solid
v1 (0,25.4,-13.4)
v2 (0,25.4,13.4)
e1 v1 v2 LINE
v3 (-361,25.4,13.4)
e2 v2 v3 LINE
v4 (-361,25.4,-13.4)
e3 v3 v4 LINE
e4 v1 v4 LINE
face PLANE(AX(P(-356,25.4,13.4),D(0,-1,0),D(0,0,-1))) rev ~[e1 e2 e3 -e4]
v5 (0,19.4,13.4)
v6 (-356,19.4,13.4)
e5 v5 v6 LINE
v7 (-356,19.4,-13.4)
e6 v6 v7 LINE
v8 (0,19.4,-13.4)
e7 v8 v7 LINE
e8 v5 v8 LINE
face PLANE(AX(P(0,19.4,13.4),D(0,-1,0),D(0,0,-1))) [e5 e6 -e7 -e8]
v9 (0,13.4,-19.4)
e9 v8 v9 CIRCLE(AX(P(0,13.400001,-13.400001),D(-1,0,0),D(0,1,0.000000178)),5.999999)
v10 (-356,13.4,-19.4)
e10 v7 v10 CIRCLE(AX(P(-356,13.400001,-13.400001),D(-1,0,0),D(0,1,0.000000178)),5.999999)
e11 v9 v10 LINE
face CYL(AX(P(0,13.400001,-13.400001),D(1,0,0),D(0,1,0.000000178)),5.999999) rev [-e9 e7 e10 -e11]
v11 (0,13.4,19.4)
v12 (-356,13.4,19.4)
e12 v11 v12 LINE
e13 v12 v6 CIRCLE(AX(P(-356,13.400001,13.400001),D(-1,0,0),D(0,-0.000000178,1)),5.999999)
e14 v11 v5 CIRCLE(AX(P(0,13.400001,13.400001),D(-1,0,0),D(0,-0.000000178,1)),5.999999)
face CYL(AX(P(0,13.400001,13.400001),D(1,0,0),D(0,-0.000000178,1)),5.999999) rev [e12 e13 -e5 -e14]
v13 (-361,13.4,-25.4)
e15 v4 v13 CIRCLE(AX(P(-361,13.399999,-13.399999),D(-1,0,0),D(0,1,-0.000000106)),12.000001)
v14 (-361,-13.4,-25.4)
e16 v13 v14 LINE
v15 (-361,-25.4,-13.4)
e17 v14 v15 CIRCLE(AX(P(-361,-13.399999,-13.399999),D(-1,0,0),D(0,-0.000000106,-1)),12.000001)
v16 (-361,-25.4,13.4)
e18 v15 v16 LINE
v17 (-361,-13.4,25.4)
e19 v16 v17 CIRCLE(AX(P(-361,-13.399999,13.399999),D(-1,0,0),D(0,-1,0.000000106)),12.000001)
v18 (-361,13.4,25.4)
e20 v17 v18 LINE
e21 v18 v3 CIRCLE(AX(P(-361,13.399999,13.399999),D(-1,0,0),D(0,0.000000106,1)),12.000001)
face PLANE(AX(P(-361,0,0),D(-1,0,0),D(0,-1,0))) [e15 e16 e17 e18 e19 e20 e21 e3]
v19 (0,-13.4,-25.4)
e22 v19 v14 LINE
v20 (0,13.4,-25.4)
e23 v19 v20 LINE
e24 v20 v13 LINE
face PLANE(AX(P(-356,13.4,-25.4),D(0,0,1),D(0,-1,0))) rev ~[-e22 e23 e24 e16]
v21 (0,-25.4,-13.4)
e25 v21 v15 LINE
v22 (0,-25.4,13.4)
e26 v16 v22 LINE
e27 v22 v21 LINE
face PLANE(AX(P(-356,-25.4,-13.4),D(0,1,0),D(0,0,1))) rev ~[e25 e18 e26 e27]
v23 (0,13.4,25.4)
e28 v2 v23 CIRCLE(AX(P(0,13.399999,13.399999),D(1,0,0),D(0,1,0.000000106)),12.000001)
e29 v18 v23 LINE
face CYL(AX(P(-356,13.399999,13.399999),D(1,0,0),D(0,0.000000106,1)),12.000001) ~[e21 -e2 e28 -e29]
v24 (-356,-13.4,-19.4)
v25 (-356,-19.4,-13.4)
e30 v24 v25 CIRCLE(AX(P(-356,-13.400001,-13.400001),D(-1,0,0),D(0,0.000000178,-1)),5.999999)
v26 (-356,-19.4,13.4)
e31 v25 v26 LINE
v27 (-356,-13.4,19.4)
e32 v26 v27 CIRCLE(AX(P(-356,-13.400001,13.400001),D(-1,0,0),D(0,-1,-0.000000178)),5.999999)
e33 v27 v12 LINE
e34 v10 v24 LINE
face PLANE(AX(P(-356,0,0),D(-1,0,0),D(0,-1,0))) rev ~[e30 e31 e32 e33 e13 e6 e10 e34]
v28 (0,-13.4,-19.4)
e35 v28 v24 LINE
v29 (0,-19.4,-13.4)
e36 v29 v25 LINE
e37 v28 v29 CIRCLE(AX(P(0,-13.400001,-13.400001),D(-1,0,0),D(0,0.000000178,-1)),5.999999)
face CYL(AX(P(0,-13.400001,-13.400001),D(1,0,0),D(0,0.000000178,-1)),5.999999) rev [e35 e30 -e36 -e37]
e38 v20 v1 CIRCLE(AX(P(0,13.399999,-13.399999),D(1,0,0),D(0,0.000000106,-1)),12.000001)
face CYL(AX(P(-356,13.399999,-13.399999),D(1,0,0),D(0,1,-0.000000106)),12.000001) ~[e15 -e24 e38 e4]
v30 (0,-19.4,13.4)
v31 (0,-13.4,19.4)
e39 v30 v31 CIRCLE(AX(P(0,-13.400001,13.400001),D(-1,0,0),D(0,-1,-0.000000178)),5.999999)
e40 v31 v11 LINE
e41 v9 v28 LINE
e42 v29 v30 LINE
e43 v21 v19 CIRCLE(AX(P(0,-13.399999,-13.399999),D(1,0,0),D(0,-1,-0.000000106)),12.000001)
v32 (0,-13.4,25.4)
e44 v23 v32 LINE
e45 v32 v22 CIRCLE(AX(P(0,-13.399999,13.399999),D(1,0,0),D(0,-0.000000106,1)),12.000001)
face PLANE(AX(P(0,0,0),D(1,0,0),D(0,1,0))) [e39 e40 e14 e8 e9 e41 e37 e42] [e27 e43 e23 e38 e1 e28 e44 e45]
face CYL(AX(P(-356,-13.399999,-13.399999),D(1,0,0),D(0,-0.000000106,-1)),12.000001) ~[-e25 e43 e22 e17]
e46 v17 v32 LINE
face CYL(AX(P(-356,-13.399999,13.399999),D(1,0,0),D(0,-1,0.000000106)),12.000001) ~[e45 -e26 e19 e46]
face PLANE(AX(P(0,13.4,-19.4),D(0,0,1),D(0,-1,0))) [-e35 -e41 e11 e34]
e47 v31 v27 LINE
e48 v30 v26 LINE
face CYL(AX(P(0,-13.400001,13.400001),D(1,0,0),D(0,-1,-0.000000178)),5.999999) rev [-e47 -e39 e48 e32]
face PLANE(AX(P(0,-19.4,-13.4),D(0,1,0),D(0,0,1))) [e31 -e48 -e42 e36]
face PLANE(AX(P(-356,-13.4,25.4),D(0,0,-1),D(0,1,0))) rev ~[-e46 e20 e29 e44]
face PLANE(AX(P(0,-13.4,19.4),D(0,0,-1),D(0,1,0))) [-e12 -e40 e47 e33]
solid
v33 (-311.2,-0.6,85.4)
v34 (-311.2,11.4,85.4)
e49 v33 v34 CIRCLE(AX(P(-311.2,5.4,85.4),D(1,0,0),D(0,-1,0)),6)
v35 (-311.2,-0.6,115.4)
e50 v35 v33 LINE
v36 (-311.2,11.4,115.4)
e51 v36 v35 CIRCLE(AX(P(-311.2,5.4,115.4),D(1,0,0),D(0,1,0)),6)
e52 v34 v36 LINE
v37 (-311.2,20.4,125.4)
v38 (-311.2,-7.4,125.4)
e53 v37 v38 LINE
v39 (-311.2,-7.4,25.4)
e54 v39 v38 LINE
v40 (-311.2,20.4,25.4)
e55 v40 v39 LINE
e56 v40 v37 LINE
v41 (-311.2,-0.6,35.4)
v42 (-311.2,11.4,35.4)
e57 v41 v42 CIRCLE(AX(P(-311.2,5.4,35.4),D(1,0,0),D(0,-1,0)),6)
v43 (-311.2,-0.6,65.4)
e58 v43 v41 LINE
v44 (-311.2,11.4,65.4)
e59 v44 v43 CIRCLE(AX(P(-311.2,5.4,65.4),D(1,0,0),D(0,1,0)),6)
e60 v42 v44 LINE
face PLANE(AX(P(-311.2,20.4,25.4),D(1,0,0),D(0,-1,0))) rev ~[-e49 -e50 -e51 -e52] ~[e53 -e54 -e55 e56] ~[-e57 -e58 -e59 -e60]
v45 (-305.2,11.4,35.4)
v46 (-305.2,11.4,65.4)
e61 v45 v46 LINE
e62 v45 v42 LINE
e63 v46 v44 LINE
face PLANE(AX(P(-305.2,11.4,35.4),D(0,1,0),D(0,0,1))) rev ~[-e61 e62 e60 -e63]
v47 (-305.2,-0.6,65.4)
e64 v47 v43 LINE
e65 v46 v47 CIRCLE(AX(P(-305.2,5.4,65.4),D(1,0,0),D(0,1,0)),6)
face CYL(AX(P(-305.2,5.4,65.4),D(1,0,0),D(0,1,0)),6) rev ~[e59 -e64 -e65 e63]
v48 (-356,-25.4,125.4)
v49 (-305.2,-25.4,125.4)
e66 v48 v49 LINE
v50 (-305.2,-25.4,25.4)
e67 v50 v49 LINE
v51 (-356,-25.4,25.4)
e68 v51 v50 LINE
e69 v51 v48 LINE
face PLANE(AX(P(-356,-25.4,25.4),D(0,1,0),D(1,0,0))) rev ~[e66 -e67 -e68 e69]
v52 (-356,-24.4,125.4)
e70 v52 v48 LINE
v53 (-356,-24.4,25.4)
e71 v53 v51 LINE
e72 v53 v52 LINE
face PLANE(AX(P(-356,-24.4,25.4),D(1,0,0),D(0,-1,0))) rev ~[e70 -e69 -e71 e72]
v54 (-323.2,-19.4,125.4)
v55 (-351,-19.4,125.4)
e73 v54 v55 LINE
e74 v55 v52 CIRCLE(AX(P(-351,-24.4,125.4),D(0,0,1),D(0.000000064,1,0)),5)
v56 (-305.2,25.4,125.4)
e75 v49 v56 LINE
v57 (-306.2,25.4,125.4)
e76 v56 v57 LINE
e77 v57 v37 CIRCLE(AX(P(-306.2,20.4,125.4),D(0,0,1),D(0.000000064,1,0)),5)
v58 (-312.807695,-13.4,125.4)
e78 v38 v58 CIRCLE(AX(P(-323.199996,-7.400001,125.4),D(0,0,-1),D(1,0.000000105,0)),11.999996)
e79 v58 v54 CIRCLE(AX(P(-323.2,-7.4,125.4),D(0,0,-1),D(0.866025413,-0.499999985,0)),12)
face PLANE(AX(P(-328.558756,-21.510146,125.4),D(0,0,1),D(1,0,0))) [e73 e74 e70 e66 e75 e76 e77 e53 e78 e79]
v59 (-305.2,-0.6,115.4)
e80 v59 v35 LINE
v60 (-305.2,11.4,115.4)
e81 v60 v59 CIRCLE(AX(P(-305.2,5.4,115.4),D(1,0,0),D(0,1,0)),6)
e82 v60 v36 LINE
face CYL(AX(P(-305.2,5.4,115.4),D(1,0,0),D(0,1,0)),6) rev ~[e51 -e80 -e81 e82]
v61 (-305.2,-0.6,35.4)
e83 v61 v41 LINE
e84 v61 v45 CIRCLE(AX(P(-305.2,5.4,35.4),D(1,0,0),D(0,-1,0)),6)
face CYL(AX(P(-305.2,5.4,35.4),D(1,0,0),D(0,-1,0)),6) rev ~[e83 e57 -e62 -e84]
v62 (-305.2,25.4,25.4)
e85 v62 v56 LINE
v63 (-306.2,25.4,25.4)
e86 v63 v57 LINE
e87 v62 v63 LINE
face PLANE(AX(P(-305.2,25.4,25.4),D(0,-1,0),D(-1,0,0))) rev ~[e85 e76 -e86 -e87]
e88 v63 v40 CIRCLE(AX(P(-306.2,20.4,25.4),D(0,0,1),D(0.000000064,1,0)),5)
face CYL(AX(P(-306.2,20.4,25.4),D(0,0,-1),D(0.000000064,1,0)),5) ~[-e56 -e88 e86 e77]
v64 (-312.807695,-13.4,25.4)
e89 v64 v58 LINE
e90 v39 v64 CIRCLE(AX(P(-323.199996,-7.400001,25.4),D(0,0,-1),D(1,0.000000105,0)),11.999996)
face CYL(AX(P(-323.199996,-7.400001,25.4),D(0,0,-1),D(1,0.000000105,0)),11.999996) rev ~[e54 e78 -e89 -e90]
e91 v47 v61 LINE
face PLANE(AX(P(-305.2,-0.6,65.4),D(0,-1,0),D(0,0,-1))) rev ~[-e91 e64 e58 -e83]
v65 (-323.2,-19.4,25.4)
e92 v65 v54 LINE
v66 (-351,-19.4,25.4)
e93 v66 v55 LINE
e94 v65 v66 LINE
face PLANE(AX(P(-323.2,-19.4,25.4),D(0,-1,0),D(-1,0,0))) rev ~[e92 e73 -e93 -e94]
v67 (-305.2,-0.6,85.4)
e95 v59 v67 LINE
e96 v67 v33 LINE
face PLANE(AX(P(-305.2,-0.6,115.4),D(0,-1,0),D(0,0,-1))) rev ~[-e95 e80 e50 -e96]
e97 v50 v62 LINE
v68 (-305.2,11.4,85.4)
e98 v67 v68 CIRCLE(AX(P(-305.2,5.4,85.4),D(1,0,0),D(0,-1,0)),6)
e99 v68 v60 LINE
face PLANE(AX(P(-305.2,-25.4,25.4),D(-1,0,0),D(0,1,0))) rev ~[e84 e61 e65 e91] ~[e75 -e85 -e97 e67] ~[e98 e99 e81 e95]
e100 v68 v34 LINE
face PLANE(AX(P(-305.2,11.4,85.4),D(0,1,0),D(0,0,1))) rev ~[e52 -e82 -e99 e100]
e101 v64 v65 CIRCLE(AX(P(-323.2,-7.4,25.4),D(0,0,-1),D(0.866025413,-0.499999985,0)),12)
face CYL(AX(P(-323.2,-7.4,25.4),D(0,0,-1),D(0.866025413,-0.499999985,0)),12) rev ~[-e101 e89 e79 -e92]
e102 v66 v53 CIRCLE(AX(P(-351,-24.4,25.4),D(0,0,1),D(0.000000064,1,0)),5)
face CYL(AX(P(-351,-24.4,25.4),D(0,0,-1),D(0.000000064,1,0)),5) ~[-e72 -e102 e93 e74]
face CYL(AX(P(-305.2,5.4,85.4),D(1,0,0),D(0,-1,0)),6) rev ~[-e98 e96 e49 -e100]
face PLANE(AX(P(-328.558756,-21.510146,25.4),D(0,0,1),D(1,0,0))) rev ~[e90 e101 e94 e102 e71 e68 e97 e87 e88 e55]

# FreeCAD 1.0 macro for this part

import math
import FreeCAD as App
import Part
import Sketcher
from FreeCAD import Vector
Q = App.Units.Quantity

doc = App.newDocument("Part")
body = doc.addObject("PartDesign::Body", "Body")

sketch1 = body.newObject("Sketcher::SketchObject", "Sketch")
sketch1.AttachmentSupport = (doc.getObject("YZ_Plane"), [""])
sketch1.MapMode = "FlatFace"
sketch1.addGeometry([
    Part.LineSegment(Vector(13, 25, 0), Vector(-13, 25, 0)),
    Part.ArcOfCircle(Part.Circle(Vector(-13, 13, 0), Vector(0, 0, 1), 12), math.radians(90), math.radians(180)),
    Part.LineSegment(Vector(-25, 13, 0), Vector(-25, -13, 0)),
    Part.ArcOfCircle(Part.Circle(Vector(-13, -13, 0), Vector(0, 0, 1), 12), math.radians(-180), math.radians(-90)),
    Part.LineSegment(Vector(-13, -25, 0), Vector(13, -25, 0)),
    Part.ArcOfCircle(Part.Circle(Vector(13, -13, 0), Vector(0, 0, 1), 12), math.radians(-90), math.radians(0)),
    Part.LineSegment(Vector(25, -13, 0), Vector(25, 13, 0)),
    Part.ArcOfCircle(Part.Circle(Vector(13, 13, 0), Vector(0, 0, 1), 12), math.radians(0), math.radians(90)),
    Part.LineSegment(Vector(-19, -13, 0), Vector(-19, 13, 0)),
    Part.ArcOfCircle(Part.Circle(Vector(-13, 13, 0), Vector(0, 0, 1), 6), math.radians(90), math.radians(180)),
    Part.LineSegment(Vector(-13, 19, 0), Vector(13, 19, 0)),
    Part.ArcOfCircle(Part.Circle(Vector(13, 13, 0), Vector(0, 0, 1), 6), math.radians(0), math.radians(90)),
    Part.LineSegment(Vector(19, 13, 0), Vector(19, -13, 0)),
    Part.ArcOfCircle(Part.Circle(Vector(13, -13, 0), Vector(0, 0, 1), 6), math.radians(-90), math.radians(0)),
    Part.LineSegment(Vector(13, -19, 0), Vector(-13, -19, 0)),
    Part.ArcOfCircle(Part.Circle(Vector(-13, -13, 0), Vector(0, 0, 1), 6), math.radians(180), math.radians(270)),
], False)
sketch1.addConstraint([
    Sketcher.Constraint("Tangent", 0, 2, 1, 1),
    Sketcher.Constraint("Tangent", 1, 2, 2, 1),
    Sketcher.Constraint("Tangent", 2, 2, 3, 1),
    Sketcher.Constraint("Tangent", 3, 2, 4, 1),
    Sketcher.Constraint("Tangent", 4, 2, 5, 1),
    Sketcher.Constraint("Tangent", 5, 2, 6, 1),
    Sketcher.Constraint("Tangent", 6, 2, 7, 1),
    Sketcher.Constraint("Tangent", 7, 2, 0, 1),
    Sketcher.Constraint("Tangent", 8, 2, 9, 2),
    Sketcher.Constraint("Tangent", 9, 1, 10, 1),
    Sketcher.Constraint("Tangent", 10, 2, 11, 2),
    Sketcher.Constraint("Tangent", 11, 1, 12, 1),
    Sketcher.Constraint("Tangent", 12, 2, 13, 2),
    Sketcher.Constraint("Tangent", 13, 1, 14, 1),
    Sketcher.Constraint("Tangent", 14, 2, 15, 2),
    Sketcher.Constraint("Tangent", 15, 1, 8, 1),
    Sketcher.Constraint("Horizontal", 0),
    Sketcher.Constraint("Vertical", 2),
    Sketcher.Constraint("Horizontal", 4),
    Sketcher.Constraint("Vertical", 6),
    Sketcher.Constraint("Vertical", 8),
    Sketcher.Constraint("Horizontal", 10),
    Sketcher.Constraint("Vertical", 12),
    Sketcher.Constraint("Horizontal", 14),
    Sketcher.Constraint("Coincident", 9, 3, 1, 3),
    Sketcher.Constraint("Coincident", 11, 3, 7, 3),
    Sketcher.Constraint("Coincident", 13, 3, 5, 3),
    Sketcher.Constraint("Equal", 1, 3),
    Sketcher.Constraint("Equal", 3, 5),
    Sketcher.Constraint("Equal", 5, 7),
    Sketcher.Constraint("Equal", 13, 15),
    Sketcher.Constraint("Symmetric", 1, 3, 5, 3, -1, 1),
    Sketcher.Constraint("Equal", 14, 2),
    Sketcher.Constraint("Radius", 1, Q("12.000001 mm")),
    Sketcher.Constraint("Radius", 9, Q("5.999999 mm")),
    Sketcher.Constraint("DistanceX", 0, 2, 0, 1, Q("26.8 mm")),
])
pad1 = body.newObject("PartDesign::Pad", "Pad")
pad1.Profile = sketch1
pad1.Length = 356
pad1.Reversed = True

sketch2 = body.newObject("Sketcher::SketchObject", "Sketch001")
sketch2.AttachmentSupport = (doc.getObject("YZ_Plane"), [""])
sketch2.MapMode = "FlatFace"
sketch2.AttachmentOffset = App.Placement(Vector(0, 0, -356), App.Rotation())
sketch2.addGeometry([
    Part.ArcOfCircle(Part.Circle(Vector(13, 13, 0), Vector(0, 0, 1), 12), math.radians(0), math.radians(90)),
    Part.LineSegment(Vector(25, 13, 0), Vector(25, -13, 0)),
    Part.ArcOfCircle(Part.Circle(Vector(13, -13, 0), Vector(0, 0, 1), 12), math.radians(-90), math.radians(0)),
    Part.LineSegment(Vector(13, -25, 0), Vector(-13, -25, 0)),
    Part.ArcOfCircle(Part.Circle(Vector(-13, -13, 0), Vector(0, 0, 1), 12), math.radians(-180), math.radians(-90)),
    Part.LineSegment(Vector(-25, -13, 0), Vector(-25, 13, 0)),
    Part.ArcOfCircle(Part.Circle(Vector(-13, 13, 0), Vector(0, 0, 1), 12), math.radians(90), math.radians(180)),
    Part.LineSegment(Vector(-13, 25, 0), Vector(13, 25, 0)),
], False)
sketch2.addConstraint([
    Sketcher.Constraint("Tangent", 0, 1, 1, 1),
    Sketcher.Constraint("Tangent", 1, 2, 2, 2),
    Sketcher.Constraint("Tangent", 2, 1, 3, 1),
    Sketcher.Constraint("Tangent", 3, 2, 4, 2),
    Sketcher.Constraint("Tangent", 4, 1, 5, 1),
    Sketcher.Constraint("Tangent", 5, 2, 6, 2),
    Sketcher.Constraint("Tangent", 6, 1, 7, 1),
    Sketcher.Constraint("Tangent", 7, 2, 0, 2),
    Sketcher.Constraint("Vertical", 1),
    Sketcher.Constraint("Horizontal", 3),
    Sketcher.Constraint("Vertical", 5),
    Sketcher.Constraint("Horizontal", 7),
    Sketcher.Constraint("Equal", 0, 2),
    Sketcher.Constraint("Equal", 2, 4),
    Sketcher.Constraint("Equal", 4, 6),
    Sketcher.Constraint("Symmetric", 0, 3, 4, 3, -1, 1),
    Sketcher.Constraint("Equal", 7, 1),
    Sketcher.Constraint("Radius", 0, Q("12.000001 mm")),
    Sketcher.Constraint("DistanceX", 3, 2, 3, 1, Q("26.8 mm")),
])
pad2 = body.newObject("PartDesign::Pad", "Pad001")
pad2.Profile = sketch2
pad2.Length = 5
pad2.Reversed = True
body2 = doc.addObject("PartDesign::Body", "Body001")

sketch3 = body2.newObject("Sketcher::SketchObject", "Sketch002")
sketch3.AttachmentSupport = (doc.getObject("XY_Plane001"), [""])
sketch3.MapMode = "FlatFace"
sketch3.AttachmentOffset = App.Placement(Vector(0, 0, 25.4), App.Rotation())
sketch3.addGeometry([
    Part.LineSegment(Vector(-356, -25.4, 0), Vector(-305.2, -25.4, 0)),
    Part.LineSegment(Vector(-305.2, -25.4, 0), Vector(-305.2, 25.4, 0)),
    Part.LineSegment(Vector(-305.2, 25.4, 0), Vector(-306.2, 25.4, 0)),
    Part.ArcOfCircle(Part.Circle(Vector(-306.2, 20.4, 0), Vector(0, 0, 1), 5), math.radians(90), math.radians(180)),
    Part.LineSegment(Vector(-311.2, 20.4, 0), Vector(-311.2, -7.4, 0)),
    Part.ArcOfCircle(Part.Circle(Vector(-323.2, -7.4, 0), Vector(0, 0, 1), 12), math.radians(-30), math.radians(0)),
    Part.ArcOfCircle(Part.Circle(Vector(-323.2, -7.4, 0), Vector(0, 0, 1), 12), math.radians(-90), math.radians(-30)),
    Part.LineSegment(Vector(-323.2, -19.4, 0), Vector(-351, -19.4, 0)),
    Part.ArcOfCircle(Part.Circle(Vector(-351, -24.4, 0), Vector(0, 0, 1), 5), math.radians(90), math.radians(180)),
    Part.LineSegment(Vector(-356, -24.4, 0), Vector(-356, -25.4, 0)),
], False)
sketch3.addConstraint([
    Sketcher.Constraint("Coincident", 0, 2, 1, 1),
    Sketcher.Constraint("Coincident", 1, 2, 2, 1),
    Sketcher.Constraint("Tangent", 2, 2, 3, 1),
    Sketcher.Constraint("Tangent", 3, 2, 4, 1),
    Sketcher.Constraint("Tangent", 4, 2, 5, 2),
    Sketcher.Constraint("Tangent", 5, 1, 6, 2),
    Sketcher.Constraint("Tangent", 6, 1, 7, 1),
    Sketcher.Constraint("Tangent", 7, 2, 8, 1),
    Sketcher.Constraint("Tangent", 8, 2, 9, 1),
    Sketcher.Constraint("Coincident", 9, 2, 0, 1),
    Sketcher.Constraint("Horizontal", 0),
    Sketcher.Constraint("Vertical", 1),
    Sketcher.Constraint("Horizontal", 2),
    Sketcher.Constraint("Vertical", 4),
    Sketcher.Constraint("Horizontal", 7),
    Sketcher.Constraint("Vertical", 9),
    Sketcher.Constraint("Equal", 3, 8),
    Sketcher.Constraint("Horizontal", 6, 3, 4, 2),
    Sketcher.Constraint("Equal", 0, 1),
    Sketcher.Constraint("Equal", 7, 4),
    Sketcher.Constraint("Radius", 3, Q("5 mm")),
    Sketcher.Constraint("Radius", 6, Q("12 mm")),
    Sketcher.Constraint("DistanceX", 2, 2, 2, 1, Q("1 mm")),
    Sketcher.Constraint("DistanceX", 0, 1, 0, 2, Q("50.8 mm")),
    Sketcher.Constraint("DistanceX", 8, 3, -1, 1, Q("351 mm")),
    Sketcher.Constraint("DistanceY", 5, 1, 4, 2, Q("6 mm")),
    Sketcher.Constraint("DistanceY", -1, 1, 3, 3, Q("20.4 mm")),
])
pad3 = body2.newObject("PartDesign::Pad", "Pad002")
pad3.Profile = sketch3
pad3.Length = 100

sketch4 = body2.newObject("Sketcher::SketchObject", "Sketch003")
sketch4.AttachmentSupport = (doc.getObject("YZ_Plane001"), [""])
sketch4.MapMode = "FlatFace"
sketch4.AttachmentOffset = App.Placement(Vector(0, 0, -305.2), App.Rotation())
sketch4.addGeometry([
    Part.ArcOfCircle(Part.Circle(Vector(5, 115, 0), Vector(0, 0, 1), 6), math.radians(0), math.radians(180)),
    Part.LineSegment(Vector(-1, 115, 0), Vector(-1, 85, 0)),
    Part.ArcOfCircle(Part.Circle(Vector(5, 85, 0), Vector(0, 0, 1), 6), math.radians(180), math.radians(360)),
    Part.LineSegment(Vector(11, 85, 0), Vector(11, 115, 0)),
    Part.LineSegment(Vector(-1, 65, 0), Vector(-1, 35, 0)),
    Part.ArcOfCircle(Part.Circle(Vector(5, 35, 0), Vector(0, 0, 1), 6), math.radians(180), math.radians(360)),
    Part.LineSegment(Vector(11, 35, 0), Vector(11, 65, 0)),
    Part.ArcOfCircle(Part.Circle(Vector(5, 65, 0), Vector(0, 0, 1), 6), math.radians(0), math.radians(180)),
], False)
sketch4.addConstraint([
    Sketcher.Constraint("Tangent", 0, 2, 1, 1),
    Sketcher.Constraint("Tangent", 1, 2, 2, 1),
    Sketcher.Constraint("Tangent", 2, 2, 3, 1),
    Sketcher.Constraint("Tangent", 3, 2, 0, 1),
    Sketcher.Constraint("Tangent", 4, 2, 5, 1),
    Sketcher.Constraint("Tangent", 5, 2, 6, 1),
    Sketcher.Constraint("Tangent", 6, 2, 7, 1),
    Sketcher.Constraint("Tangent", 7, 2, 4, 1),
    Sketcher.Constraint("Vertical", 1),
    Sketcher.Constraint("Vertical", 3),
    Sketcher.Constraint("Vertical", 4),
    Sketcher.Constraint("Vertical", 6),
    Sketcher.Constraint("Equal", 2, 5),
    Sketcher.Constraint("Vertical", 2, 3, 5, 3),
    Sketcher.Constraint("Equal", 3, 4),
    Sketcher.Constraint("Radius", 0, Q("6 mm")),
    Sketcher.Constraint("DistanceY", 1, 2, 1, 1, Q("30 mm")),
    Sketcher.Constraint("DistanceY", 5, 3, 2, 3, Q("50 mm")),
    Sketcher.Constraint("DistanceX", -1, 1, 0, 3, Q("5.4 mm")),
    Sketcher.Constraint("DistanceY", -1, 1, 0, 3, Q("115.4 mm")),
])
pocket1 = body2.newObject("PartDesign::Pocket", "Pocket")
pocket1.Profile = sketch4
pocket1.Type = "ThroughAll"

doc.recompute()
